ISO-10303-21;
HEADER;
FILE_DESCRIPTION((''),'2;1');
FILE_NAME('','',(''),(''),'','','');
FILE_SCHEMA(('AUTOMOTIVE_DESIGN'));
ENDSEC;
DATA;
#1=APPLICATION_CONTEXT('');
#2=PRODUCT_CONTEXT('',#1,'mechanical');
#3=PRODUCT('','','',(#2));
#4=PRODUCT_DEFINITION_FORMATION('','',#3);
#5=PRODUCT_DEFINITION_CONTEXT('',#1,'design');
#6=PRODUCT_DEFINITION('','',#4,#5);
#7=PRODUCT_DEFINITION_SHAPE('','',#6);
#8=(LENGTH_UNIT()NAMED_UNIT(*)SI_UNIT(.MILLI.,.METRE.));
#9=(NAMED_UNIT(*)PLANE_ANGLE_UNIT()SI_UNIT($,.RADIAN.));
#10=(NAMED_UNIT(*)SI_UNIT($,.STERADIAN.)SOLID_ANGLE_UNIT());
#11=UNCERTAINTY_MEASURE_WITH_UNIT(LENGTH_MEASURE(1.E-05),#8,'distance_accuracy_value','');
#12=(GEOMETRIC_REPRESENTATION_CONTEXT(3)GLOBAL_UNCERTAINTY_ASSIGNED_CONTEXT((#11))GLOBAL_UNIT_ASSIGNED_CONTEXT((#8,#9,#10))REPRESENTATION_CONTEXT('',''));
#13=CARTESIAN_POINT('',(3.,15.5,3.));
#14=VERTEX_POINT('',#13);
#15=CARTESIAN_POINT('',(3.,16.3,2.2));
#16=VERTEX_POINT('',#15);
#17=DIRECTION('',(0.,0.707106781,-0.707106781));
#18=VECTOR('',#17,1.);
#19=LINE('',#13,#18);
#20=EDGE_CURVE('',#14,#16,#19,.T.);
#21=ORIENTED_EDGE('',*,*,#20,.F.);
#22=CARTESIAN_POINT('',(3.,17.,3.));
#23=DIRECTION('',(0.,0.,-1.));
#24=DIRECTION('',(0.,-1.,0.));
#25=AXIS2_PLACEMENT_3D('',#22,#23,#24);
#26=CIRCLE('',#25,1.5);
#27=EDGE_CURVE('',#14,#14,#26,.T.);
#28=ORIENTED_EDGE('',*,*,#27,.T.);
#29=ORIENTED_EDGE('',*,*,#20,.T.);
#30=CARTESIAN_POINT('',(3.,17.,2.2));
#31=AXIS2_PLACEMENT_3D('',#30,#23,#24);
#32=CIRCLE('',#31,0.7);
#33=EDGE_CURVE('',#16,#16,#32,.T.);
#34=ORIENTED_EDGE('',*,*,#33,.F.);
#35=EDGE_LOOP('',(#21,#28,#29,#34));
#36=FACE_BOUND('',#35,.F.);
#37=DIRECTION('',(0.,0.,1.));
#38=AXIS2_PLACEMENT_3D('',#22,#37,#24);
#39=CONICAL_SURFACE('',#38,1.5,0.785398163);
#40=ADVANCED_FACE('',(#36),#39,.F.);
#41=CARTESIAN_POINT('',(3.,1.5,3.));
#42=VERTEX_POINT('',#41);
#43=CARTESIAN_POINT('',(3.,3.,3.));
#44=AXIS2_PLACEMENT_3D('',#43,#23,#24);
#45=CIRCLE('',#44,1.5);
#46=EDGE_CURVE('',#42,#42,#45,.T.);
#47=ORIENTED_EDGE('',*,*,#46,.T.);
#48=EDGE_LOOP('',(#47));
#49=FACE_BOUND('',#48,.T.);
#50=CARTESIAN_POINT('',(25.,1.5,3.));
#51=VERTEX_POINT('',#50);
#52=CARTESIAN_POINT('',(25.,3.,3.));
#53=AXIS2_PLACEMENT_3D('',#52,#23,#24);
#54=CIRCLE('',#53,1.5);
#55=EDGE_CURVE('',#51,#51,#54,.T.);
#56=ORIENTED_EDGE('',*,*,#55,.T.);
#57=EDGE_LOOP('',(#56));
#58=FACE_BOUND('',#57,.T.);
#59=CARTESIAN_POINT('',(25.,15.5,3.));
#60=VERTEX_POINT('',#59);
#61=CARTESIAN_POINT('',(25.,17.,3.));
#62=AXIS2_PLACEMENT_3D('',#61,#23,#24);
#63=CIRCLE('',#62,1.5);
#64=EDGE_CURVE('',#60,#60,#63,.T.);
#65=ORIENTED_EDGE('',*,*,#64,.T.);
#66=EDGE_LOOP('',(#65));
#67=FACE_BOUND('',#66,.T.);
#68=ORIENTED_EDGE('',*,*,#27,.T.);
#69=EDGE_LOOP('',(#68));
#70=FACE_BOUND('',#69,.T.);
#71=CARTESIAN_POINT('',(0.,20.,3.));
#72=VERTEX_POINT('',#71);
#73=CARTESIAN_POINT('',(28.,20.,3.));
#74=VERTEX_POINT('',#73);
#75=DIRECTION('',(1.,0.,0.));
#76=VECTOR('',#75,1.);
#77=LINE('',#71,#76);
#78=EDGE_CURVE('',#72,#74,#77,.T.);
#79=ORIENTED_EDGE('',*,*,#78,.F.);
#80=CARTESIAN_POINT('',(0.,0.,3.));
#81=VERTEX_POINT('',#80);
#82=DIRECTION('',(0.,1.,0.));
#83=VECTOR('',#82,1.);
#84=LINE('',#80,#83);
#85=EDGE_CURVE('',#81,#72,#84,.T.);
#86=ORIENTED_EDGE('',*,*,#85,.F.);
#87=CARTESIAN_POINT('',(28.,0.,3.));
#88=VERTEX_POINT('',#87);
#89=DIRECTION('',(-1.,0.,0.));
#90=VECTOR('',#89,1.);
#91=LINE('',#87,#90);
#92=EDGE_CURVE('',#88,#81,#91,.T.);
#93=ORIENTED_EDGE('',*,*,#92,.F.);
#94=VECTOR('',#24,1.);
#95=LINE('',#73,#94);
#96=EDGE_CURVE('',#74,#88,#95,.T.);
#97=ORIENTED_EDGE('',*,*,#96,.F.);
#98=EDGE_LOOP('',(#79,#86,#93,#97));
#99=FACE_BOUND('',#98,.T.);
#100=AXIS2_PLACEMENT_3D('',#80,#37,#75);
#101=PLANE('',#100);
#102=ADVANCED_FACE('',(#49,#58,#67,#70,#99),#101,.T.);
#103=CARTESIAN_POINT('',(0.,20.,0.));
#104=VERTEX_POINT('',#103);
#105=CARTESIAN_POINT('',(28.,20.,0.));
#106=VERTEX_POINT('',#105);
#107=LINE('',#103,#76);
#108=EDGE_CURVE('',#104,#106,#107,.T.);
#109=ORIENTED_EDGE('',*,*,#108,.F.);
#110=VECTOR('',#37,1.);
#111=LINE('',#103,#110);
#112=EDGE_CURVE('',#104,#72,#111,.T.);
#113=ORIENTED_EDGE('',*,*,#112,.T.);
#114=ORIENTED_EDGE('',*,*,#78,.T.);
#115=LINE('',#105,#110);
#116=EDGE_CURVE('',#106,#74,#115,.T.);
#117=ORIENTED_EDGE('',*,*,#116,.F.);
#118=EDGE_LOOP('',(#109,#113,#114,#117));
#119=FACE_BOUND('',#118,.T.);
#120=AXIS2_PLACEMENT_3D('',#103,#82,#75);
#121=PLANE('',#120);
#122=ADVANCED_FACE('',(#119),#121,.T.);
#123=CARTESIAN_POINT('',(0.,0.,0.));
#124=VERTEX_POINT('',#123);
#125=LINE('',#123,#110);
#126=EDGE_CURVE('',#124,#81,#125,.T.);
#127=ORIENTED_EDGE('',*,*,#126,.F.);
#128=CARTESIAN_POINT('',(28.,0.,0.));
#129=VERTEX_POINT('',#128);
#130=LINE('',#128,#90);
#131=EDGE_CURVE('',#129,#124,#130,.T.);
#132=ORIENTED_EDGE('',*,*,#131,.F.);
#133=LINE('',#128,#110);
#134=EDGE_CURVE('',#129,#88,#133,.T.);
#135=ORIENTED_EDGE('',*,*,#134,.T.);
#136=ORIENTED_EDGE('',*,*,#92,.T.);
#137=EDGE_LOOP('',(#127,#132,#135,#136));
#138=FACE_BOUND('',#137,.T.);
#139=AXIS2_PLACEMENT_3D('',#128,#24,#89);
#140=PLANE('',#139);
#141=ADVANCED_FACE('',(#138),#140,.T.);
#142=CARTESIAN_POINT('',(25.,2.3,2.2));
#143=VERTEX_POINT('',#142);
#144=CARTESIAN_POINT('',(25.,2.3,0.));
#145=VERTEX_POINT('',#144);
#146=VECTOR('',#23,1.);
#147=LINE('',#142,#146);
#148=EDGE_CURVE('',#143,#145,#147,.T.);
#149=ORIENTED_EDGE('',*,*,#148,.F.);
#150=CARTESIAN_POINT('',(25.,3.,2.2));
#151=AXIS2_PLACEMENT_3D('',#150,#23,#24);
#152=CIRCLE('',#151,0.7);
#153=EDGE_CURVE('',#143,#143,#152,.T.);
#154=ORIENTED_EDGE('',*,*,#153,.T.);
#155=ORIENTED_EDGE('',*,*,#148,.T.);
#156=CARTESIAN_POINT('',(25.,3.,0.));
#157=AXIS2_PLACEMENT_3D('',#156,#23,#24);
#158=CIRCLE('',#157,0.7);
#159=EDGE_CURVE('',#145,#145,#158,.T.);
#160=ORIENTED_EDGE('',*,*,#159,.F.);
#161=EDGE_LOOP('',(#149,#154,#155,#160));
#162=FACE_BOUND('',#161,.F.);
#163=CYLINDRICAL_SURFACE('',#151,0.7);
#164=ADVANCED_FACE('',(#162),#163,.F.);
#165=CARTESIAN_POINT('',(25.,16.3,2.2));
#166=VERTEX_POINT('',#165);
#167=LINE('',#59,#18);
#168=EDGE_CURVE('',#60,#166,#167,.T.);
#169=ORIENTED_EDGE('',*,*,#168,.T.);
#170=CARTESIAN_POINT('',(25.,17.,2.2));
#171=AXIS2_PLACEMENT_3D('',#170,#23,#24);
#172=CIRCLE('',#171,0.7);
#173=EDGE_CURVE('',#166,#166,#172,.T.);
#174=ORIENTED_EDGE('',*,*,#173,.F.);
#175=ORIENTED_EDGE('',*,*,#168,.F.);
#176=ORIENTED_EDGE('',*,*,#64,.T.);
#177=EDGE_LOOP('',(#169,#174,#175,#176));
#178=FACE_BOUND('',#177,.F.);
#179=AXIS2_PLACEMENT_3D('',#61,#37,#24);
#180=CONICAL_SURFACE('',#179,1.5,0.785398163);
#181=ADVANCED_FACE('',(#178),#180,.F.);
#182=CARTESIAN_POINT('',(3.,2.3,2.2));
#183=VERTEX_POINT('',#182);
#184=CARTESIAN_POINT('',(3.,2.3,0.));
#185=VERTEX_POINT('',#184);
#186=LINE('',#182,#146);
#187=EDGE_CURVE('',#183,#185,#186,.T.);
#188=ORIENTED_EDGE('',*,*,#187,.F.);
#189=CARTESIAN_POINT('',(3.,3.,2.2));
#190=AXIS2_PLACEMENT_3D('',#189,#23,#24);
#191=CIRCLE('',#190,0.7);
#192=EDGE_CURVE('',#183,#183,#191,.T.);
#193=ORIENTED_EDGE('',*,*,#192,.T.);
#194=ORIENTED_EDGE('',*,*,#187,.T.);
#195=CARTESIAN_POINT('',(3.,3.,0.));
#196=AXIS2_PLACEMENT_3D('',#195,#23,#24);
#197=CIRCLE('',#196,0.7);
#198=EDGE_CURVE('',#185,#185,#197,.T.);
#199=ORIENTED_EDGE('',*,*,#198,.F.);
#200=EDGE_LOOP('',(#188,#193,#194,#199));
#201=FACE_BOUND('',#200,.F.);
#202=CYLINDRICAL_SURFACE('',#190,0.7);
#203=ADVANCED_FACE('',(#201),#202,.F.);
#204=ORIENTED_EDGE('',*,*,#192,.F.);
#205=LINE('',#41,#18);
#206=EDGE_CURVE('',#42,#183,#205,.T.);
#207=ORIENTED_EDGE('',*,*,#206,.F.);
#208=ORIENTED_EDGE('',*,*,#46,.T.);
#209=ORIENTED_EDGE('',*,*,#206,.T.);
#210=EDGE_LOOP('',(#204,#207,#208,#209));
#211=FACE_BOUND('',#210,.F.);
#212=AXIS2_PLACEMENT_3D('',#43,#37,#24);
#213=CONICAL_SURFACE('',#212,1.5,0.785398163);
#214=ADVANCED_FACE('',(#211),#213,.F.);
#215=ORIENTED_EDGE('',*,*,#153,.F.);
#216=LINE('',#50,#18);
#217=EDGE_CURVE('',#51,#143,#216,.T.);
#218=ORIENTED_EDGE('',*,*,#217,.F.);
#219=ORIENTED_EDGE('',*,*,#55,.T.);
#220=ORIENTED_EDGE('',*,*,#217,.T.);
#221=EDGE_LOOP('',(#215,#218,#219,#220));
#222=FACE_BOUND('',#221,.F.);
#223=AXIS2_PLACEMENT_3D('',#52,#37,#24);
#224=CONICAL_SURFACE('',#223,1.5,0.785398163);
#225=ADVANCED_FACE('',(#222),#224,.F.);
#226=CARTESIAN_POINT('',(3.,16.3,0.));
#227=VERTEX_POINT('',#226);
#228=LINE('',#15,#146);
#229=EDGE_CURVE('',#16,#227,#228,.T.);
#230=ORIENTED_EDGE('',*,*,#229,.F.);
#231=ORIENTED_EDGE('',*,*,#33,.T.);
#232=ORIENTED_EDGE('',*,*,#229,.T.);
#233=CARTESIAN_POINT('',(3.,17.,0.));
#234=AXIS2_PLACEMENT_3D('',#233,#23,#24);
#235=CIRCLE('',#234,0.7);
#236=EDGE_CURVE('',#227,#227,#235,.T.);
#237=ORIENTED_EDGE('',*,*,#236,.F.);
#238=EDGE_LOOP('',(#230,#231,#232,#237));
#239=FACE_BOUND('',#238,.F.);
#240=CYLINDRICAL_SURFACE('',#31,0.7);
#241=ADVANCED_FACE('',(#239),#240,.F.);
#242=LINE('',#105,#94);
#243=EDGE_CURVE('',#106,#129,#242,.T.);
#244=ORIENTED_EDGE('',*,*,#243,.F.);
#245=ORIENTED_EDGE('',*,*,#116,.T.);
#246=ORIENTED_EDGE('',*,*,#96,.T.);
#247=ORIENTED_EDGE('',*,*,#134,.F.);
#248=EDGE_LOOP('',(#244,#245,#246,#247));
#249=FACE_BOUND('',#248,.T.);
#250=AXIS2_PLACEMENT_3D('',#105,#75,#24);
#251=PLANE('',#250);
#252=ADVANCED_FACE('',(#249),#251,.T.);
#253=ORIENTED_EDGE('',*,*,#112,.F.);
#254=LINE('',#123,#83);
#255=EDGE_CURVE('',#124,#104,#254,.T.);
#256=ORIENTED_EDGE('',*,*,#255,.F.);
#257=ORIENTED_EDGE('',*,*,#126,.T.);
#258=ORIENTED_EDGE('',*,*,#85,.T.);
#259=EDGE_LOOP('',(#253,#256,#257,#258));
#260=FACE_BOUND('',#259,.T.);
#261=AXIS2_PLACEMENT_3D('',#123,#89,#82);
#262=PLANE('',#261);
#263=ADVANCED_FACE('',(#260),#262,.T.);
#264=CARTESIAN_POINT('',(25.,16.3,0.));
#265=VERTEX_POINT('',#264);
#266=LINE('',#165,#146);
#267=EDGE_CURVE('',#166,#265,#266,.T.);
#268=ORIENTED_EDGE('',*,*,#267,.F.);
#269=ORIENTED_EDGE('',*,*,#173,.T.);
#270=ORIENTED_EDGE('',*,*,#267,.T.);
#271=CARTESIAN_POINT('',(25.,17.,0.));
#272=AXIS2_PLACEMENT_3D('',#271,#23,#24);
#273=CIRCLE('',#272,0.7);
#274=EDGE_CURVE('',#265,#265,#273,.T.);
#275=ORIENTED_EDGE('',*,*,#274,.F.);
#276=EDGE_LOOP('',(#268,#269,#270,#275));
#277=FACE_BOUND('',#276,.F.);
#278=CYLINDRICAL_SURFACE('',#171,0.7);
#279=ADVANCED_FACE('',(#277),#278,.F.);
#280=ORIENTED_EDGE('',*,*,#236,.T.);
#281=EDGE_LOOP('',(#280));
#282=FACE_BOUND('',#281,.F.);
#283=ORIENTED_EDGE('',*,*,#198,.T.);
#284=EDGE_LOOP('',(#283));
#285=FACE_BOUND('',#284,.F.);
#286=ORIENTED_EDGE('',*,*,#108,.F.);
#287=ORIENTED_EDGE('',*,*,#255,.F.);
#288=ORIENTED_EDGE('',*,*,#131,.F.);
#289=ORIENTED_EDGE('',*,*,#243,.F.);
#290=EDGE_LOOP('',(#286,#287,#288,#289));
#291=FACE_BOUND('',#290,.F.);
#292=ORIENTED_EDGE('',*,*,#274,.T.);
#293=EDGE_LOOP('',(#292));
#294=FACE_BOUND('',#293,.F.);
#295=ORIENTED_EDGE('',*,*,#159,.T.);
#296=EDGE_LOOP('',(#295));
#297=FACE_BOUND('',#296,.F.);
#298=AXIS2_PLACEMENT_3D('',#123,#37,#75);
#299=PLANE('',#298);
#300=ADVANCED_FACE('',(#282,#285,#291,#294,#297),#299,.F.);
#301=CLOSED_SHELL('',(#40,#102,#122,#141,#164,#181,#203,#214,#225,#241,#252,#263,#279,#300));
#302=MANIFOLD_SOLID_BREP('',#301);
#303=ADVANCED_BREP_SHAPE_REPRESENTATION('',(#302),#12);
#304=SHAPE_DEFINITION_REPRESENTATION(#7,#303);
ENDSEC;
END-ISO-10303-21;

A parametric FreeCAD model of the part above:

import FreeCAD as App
import Part
import Sketcher
from FreeCAD import Vector

doc = App.newDocument("Part")
params = doc.addObject("Spreadsheet::Sheet", "Params")
for row, (alias, value) in enumerate([
    ("sketch1_width", "28 mm"),
    ("sketch1_height", "20 mm"),
    ("pad1_length", "3 mm"),
    ("sketch2_diameter", "1.4 mm"),
    ("hole_diameter", "1.4 mm"),
    ("hole_csink_diameter", "3 mm"),
], start=1):
    params.set(f"A{row}", alias)
    params.set(f"B{row}", "=" + value)
    params.setAlias(f"B{row}", alias)

body = doc.addObject("PartDesign::Body", "Body")

# Sketch on XY plane
sketch1 = body.newObject("Sketcher::SketchObject", "Sketch")
sketch1.AttachmentSupport = (doc.getObject("XY_Plane"), [""])
sketch1.MapMode = "FlatFace"
sketch1.addGeometry([
    Part.LineSegment(Vector(28, 20, 0), Vector(0, 20, 0)),
    Part.LineSegment(Vector(0, 20, 0), Vector(0, 0, 0)),
    Part.LineSegment(Vector(0, 0, 0), Vector(28, 0, 0)),
    Part.LineSegment(Vector(28, 0, 0), Vector(28, 20, 0)),
], False)
sketch1.addConstraint([
    Sketcher.Constraint("Coincident", 0, 2, 1, 1),
    Sketcher.Constraint("Coincident", 1, 2, 2, 1),
    Sketcher.Constraint("Coincident", 2, 2, 3, 1),
    Sketcher.Constraint("Coincident", 3, 2, 0, 1),
    Sketcher.Constraint("Horizontal", 0),
    Sketcher.Constraint("Vertical", 1),
    Sketcher.Constraint("Horizontal", 2),
    Sketcher.Constraint("Vertical", 3),
    Sketcher.Constraint("Coincident", 1, 2, -1, 1),
    Sketcher.Constraint("DistanceX", 0, 2, 0, 1, 28.0),
    Sketcher.Constraint("DistanceY", 1, 2, 1, 1, 20.0),
])
sketch1.setExpression("Constraints[9]", "Params.sketch1_width")
sketch1.setExpression("Constraints[10]", "Params.sketch1_height")
pad1 = body.newObject("PartDesign::Pad", "Pad")
pad1.Profile = sketch1
pad1.setExpression("Length", "Params.pad1_length")

# Sketch on XY plane
sketch2 = body.newObject("Sketcher::SketchObject", "Sketch001")
sketch2.AttachmentSupport = (doc.getObject("XY_Plane"), [""])
sketch2.MapMode = "FlatFace"
sketch2.AttachmentOffset = App.Placement(Vector(0, 0, 3), App.Rotation())
sketch2.addGeometry([
    Part.Circle(Vector(3, 17, 0), Vector(0, 0, 1), 0.7),
    Part.Circle(Vector(3, 3, 0), Vector(0, 0, 1), 0.7),
    Part.Circle(Vector(25, 3, 0), Vector(0, 0, 1), 0.7),
    Part.Circle(Vector(25, 17, 0), Vector(0, 0, 1), 0.7),
], False)
sketch2.addConstraint([
    Sketcher.Constraint("Equal", 0, 1),
    Sketcher.Constraint("Equal", 1, 2),
    Sketcher.Constraint("Equal", 2, 3),
    Sketcher.Constraint("Horizontal", 1, 3, 2, 3),
    Sketcher.Constraint("Horizontal", 0, 3, 3, 3),
    Sketcher.Constraint("Vertical", 0, 3, 1, 3),
    Sketcher.Constraint("Vertical", 2, 3, 3, 3),
    Sketcher.Constraint("Diameter", 0, 1.4),
    Sketcher.Constraint("DistanceX", -1, 1, 0, 3, 3.0),
    Sketcher.Constraint("DistanceY", -1, 1, 0, 3, 17.0),
    Sketcher.Constraint("DistanceY", -1, 1, 1, 3, 3.0),
    Sketcher.Constraint("DistanceX", -1, 1, 2, 3, 25.0),
])
sketch2.setExpression("Constraints[7]", "Params.sketch2_diameter")
doc.recompute()
hole = body.newObject("PartDesign::Hole", "Hole")
hole.Profile = sketch2
hole.ThreadType = "None"
hole.setExpression("Diameter", "Params.hole_diameter")
hole.DepthType = "ThroughAll"
hole.HoleCutType = "Countersink"
hole.setExpression("HoleCutDiameter", "Params.hole_csink_diameter")
hole.HoleCutCountersinkAngle = 90

doc.recompute()
